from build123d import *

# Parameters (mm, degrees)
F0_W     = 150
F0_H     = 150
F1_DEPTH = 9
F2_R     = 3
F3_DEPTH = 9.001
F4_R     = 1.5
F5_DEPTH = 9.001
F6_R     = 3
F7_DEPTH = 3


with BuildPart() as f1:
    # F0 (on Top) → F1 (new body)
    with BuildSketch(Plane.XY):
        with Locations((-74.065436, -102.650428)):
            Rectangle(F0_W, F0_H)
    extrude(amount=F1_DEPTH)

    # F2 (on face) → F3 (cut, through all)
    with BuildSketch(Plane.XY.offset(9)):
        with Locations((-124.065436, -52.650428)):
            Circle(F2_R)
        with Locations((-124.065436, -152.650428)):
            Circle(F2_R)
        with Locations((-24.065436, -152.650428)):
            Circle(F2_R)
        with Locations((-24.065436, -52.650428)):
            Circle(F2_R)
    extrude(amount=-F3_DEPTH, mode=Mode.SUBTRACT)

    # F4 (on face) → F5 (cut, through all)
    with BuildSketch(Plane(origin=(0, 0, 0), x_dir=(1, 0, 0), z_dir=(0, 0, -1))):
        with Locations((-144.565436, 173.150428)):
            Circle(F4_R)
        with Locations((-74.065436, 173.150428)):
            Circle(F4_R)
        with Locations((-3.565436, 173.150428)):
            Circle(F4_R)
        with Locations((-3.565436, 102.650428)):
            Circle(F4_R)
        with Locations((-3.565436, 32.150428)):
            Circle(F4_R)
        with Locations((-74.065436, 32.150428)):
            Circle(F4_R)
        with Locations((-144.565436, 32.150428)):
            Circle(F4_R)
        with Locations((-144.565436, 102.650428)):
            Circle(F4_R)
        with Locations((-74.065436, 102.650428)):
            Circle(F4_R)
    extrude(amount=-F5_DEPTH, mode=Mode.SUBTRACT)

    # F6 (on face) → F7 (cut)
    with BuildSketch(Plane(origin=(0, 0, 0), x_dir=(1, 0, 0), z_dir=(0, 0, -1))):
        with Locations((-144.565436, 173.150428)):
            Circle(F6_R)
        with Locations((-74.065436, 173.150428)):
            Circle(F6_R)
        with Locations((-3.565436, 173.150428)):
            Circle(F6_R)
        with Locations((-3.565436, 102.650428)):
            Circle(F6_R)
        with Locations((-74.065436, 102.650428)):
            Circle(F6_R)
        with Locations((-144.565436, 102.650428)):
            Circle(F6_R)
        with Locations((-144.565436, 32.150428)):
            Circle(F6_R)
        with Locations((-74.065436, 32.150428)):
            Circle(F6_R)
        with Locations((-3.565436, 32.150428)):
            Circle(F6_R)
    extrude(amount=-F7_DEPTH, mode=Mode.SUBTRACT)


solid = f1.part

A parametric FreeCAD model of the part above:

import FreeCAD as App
import Part
import Sketcher
from FreeCAD import Vector

doc = App.newDocument("Part")
body = doc.addObject("PartDesign::Body", "Body")

# Sketch on XY plane
sketch1 = doc.addObject("Sketcher::SketchObject", "Sketch")
body.addObject(sketch1)
sketch1.AttachmentSupport = (doc.XY_Plane, [""])
sketch1.MapMode = "FlatFace"
sketch1.addGeometry([
    Part.LineSegment(Vector(-149, -28, 0), Vector(-149, -178, 0)),
    Part.LineSegment(Vector(-149, -178, 0), Vector(1, -178, 0)),
    Part.LineSegment(Vector(1, -178, 0), Vector(1, -28, 0)),
    Part.LineSegment(Vector(1, -28, 0), Vector(-149, -28, 0)),
], False)
sketch1.addConstraint([
    Sketcher.Constraint("Coincident", 0, 2, 1, 1),
    Sketcher.Constraint("Coincident", 1, 2, 2, 1),
    Sketcher.Constraint("Coincident", 2, 2, 3, 1),
    Sketcher.Constraint("Coincident", 3, 2, 0, 1),
    Sketcher.Constraint("Vertical", 0),
    Sketcher.Constraint("Horizontal", 1),
    Sketcher.Constraint("Vertical", 2),
    Sketcher.Constraint("Horizontal", 3),
    Sketcher.Constraint("Equal", 3, 0),
    Sketcher.Constraint("DistanceX", 1, 1, 1, 2, 150.0),
    Sketcher.Constraint("DistanceY", 0, 2, -1, 1, 177.650428),
    Sketcher.Constraint("DistanceX", 0, 2, -1, 1, 149.065436),
])
pad1 = doc.addObject("PartDesign::Pad", "Pad")
body.addObject(pad1)
pad1.Profile = sketch1
pad1.Length = 9

# Sketch on XY plane
sketch2 = doc.addObject("Sketcher::SketchObject", "Sketch001")
body.addObject(sketch2)
sketch2.AttachmentSupport = (doc.XY_Plane, [""])
sketch2.MapMode = "FlatFace"
sketch2.AttachmentOffset = App.Placement(Vector(0, 0, 9), App.Rotation())
sketch2.addGeometry([
    Part.Circle(Vector(-124.1, -52.7, 0), Vector(0, 0, 1), 3),
    Part.Circle(Vector(-124.1, -152.7, 0), Vector(0, 0, 1), 3),
    Part.Circle(Vector(-24.1, -152.7, 0), Vector(0, 0, 1), 3),
    Part.Circle(Vector(-24.1, -52.7, 0), Vector(0, 0, 1), 3),
], False)
sketch2.addConstraint([
    Sketcher.Constraint("Equal", 0, 1),
    Sketcher.Constraint("Equal", 1, 2),
    Sketcher.Constraint("Equal", 2, 3),
    Sketcher.Constraint("Horizontal", 1, 3, 2, 3),
    Sketcher.Constraint("Horizontal", 0, 3, 3, 3),
    Sketcher.Constraint("Vertical", 0, 3, 1, 3),
    Sketcher.Constraint("Vertical", 2, 3, 3, 3),
    Sketcher.Constraint("Diameter", 0, 6.0),
    Sketcher.Constraint("DistanceY", 1, 3, 0, 3, 100.0),
    Sketcher.Constraint("DistanceX", 1, 3, 2, 3, 100.0),
    Sketcher.Constraint("DistanceY", 1, 3, -1, 1, 152.650428),
    Sketcher.Constraint("DistanceX", 0, 3, -1, 1, 124.065436),
])
pocket1 = doc.addObject("PartDesign::Pocket", "Pocket")
body.addObject(pocket1)
pocket1.Profile = sketch2
pocket1.Type = "ThroughAll"

# Sketch on XY plane
sketch3 = doc.addObject("Sketcher::SketchObject", "Sketch002")
body.addObject(sketch3)
sketch3.AttachmentSupport = (doc.XY_Plane, [""])
sketch3.MapMode = "FlatFace"
sketch3.addGeometry([
    Part.Circle(Vector(-144.6, -173.2, 0), Vector(0, 0, 1), 1.5),  # 0
    Part.Circle(Vector(-74.1, -173.2, 0), Vector(0, 0, 1), 1.5),  # 1
    Part.Circle(Vector(-3.6, -173.2, 0), Vector(0, 0, 1), 1.5),  # 2
    Part.Circle(Vector(-3.6, -102.7, 0), Vector(0, 0, 1), 1.5),  # 3
    Part.Circle(Vector(-3.6, -32.2, 0), Vector(0, 0, 1), 1.5),  # 4
    Part.Circle(Vector(-74.1, -32.2, 0), Vector(0, 0, 1), 1.5),  # 5
    Part.Circle(Vector(-144.6, -32.2, 0), Vector(0, 0, 1), 1.5),  # 6
    Part.Circle(Vector(-144.6, -102.7, 0), Vector(0, 0, 1), 1.5),  # 7
    Part.Circle(Vector(-74.1, -102.7, 0), Vector(0, 0, 1), 1.5),  # 8
], False)
sketch3.addConstraint([
    Sketcher.Constraint("Equal", 0, 1),
    Sketcher.Constraint("Equal", 1, 2),
    Sketcher.Constraint("Equal", 2, 3),
    Sketcher.Constraint("Equal", 3, 4),
    Sketcher.Constraint("Equal", 4, 5),
    Sketcher.Constraint("Equal", 5, 6),
    Sketcher.Constraint("Equal", 6, 7),
    Sketcher.Constraint("Equal", 7, 8),
    Sketcher.Constraint("Horizontal", 0, 3, 1, 3),
    Sketcher.Constraint("Horizontal", 1, 3, 2, 3),
    Sketcher.Constraint("Horizontal", 4, 3, 5, 3),
    Sketcher.Constraint("Horizontal", 5, 3, 6, 3),
    Sketcher.Constraint("Horizontal", 3, 3, 7, 3),
    Sketcher.Constraint("Horizontal", 7, 3, 8, 3),
    Sketcher.Constraint("Vertical", 2, 3, 3, 3),
    Sketcher.Constraint("Vertical", 3, 3, 4, 3),
    Sketcher.Constraint("Vertical", 1, 3, 5, 3),
    Sketcher.Constraint("Vertical", 0, 3, 6, 3),
    Sketcher.Constraint("Vertical", 6, 3, 7, 3),
    Sketcher.Constraint("Vertical", 5, 3, 8, 3),
    Sketcher.Constraint("Diameter", 0, 3.0),
    Sketcher.Constraint("DistanceX", 0, 3, 2, 3, 141.0),
    Sketcher.Constraint("DistanceY", 2, 3, 4, 3, 141.0),
    Sketcher.Constraint("DistanceX", 0, 3, 1, 3, 70.5),
    Sketcher.Constraint("DistanceY", 2, 3, 3, 3, 70.5),
    Sketcher.Constraint("DistanceY", 0, 3, -1, 1, 173.150428),
    Sketcher.Constraint("DistanceX", 0, 3, -1, 1, 144.565436),
])
pocket2 = doc.addObject("PartDesign::Pocket", "Pocket001")
body.addObject(pocket2)
pocket2.Profile = sketch3
pocket2.Type = "ThroughAll"
pocket2.Reversed = True

# Sketch on XY plane
sketch4 = doc.addObject("Sketcher::SketchObject", "Sketch003")
body.addObject(sketch4)
sketch4.AttachmentSupport = (doc.XY_Plane, [""])
sketch4.MapMode = "FlatFace"
sketch4.addGeometry([
    Part.Circle(Vector(-144.6, -173.2, 0), Vector(0, 0, 1), 3),  # 0
    Part.Circle(Vector(-74.1, -173.2, 0), Vector(0, 0, 1), 3),  # 1
    Part.Circle(Vector(-3.6, -173.2, 0), Vector(0, 0, 1), 3),  # 2
    Part.Circle(Vector(-3.6, -102.7, 0), Vector(0, 0, 1), 3),  # 3
    Part.Circle(Vector(-74.1, -102.7, 0), Vector(0, 0, 1), 3),  # 4
    Part.Circle(Vector(-144.6, -102.7, 0), Vector(0, 0, 1), 3),  # 5
    Part.Circle(Vector(-144.6, -32.2, 0), Vector(0, 0, 1), 3),  # 6
    Part.Circle(Vector(-74.1, -32.2, 0), Vector(0, 0, 1), 3),  # 7
    Part.Circle(Vector(-3.6, -32.2, 0), Vector(0, 0, 1), 3),  # 8
], False)
sketch4.addConstraint([
    Sketcher.Constraint("Equal", 0, 1),
    Sketcher.Constraint("Equal", 1, 2),
    Sketcher.Constraint("Equal", 2, 3),
    Sketcher.Constraint("Equal", 3, 4),
    Sketcher.Constraint("Equal", 4, 5),
    Sketcher.Constraint("Equal", 5, 6),
    Sketcher.Constraint("Equal", 6, 7),
    Sketcher.Constraint("Equal", 7, 8),
    Sketcher.Constraint("Horizontal", 0, 3, 1, 3),
    Sketcher.Constraint("Horizontal", 1, 3, 2, 3),
    Sketcher.Constraint("Horizontal", 3, 3, 4, 3),
    Sketcher.Constraint("Horizontal", 4, 3, 5, 3),
    Sketcher.Constraint("Horizontal", 6, 3, 7, 3),
    Sketcher.Constraint("Horizontal", 7, 3, 8, 3),
    Sketcher.Constraint("Vertical", 2, 3, 3, 3),
    Sketcher.Constraint("Vertical", 1, 3, 4, 3),
    Sketcher.Constraint("Vertical", 0, 3, 5, 3),
    Sketcher.Constraint("Vertical", 5, 3, 6, 3),
    Sketcher.Constraint("Vertical", 4, 3, 7, 3),
    Sketcher.Constraint("Vertical", 3, 3, 8, 3),
    Sketcher.Constraint("Diameter", 0, 6.0),
    Sketcher.Constraint("DistanceX", 0, 3, 2, 3, 141.0),
    Sketcher.Constraint("DistanceY", 0, 3, 6, 3, 141.0),
    Sketcher.Constraint("DistanceX", 0, 3, 1, 3, 70.5),
    Sketcher.Constraint("DistanceY", 2, 3, 3, 3, 70.5),
    Sketcher.Constraint("DistanceY", 0, 3, -1, 1, 173.150428),
    Sketcher.Constraint("DistanceX", 0, 3, -1, 1, 144.565436),
])
pocket3 = doc.addObject("PartDesign::Pocket", "Pocket002")
body.addObject(pocket3)
pocket3.Profile = sketch4
pocket3.Length = 3
pocket3.Reversed = True

doc.recompute()
